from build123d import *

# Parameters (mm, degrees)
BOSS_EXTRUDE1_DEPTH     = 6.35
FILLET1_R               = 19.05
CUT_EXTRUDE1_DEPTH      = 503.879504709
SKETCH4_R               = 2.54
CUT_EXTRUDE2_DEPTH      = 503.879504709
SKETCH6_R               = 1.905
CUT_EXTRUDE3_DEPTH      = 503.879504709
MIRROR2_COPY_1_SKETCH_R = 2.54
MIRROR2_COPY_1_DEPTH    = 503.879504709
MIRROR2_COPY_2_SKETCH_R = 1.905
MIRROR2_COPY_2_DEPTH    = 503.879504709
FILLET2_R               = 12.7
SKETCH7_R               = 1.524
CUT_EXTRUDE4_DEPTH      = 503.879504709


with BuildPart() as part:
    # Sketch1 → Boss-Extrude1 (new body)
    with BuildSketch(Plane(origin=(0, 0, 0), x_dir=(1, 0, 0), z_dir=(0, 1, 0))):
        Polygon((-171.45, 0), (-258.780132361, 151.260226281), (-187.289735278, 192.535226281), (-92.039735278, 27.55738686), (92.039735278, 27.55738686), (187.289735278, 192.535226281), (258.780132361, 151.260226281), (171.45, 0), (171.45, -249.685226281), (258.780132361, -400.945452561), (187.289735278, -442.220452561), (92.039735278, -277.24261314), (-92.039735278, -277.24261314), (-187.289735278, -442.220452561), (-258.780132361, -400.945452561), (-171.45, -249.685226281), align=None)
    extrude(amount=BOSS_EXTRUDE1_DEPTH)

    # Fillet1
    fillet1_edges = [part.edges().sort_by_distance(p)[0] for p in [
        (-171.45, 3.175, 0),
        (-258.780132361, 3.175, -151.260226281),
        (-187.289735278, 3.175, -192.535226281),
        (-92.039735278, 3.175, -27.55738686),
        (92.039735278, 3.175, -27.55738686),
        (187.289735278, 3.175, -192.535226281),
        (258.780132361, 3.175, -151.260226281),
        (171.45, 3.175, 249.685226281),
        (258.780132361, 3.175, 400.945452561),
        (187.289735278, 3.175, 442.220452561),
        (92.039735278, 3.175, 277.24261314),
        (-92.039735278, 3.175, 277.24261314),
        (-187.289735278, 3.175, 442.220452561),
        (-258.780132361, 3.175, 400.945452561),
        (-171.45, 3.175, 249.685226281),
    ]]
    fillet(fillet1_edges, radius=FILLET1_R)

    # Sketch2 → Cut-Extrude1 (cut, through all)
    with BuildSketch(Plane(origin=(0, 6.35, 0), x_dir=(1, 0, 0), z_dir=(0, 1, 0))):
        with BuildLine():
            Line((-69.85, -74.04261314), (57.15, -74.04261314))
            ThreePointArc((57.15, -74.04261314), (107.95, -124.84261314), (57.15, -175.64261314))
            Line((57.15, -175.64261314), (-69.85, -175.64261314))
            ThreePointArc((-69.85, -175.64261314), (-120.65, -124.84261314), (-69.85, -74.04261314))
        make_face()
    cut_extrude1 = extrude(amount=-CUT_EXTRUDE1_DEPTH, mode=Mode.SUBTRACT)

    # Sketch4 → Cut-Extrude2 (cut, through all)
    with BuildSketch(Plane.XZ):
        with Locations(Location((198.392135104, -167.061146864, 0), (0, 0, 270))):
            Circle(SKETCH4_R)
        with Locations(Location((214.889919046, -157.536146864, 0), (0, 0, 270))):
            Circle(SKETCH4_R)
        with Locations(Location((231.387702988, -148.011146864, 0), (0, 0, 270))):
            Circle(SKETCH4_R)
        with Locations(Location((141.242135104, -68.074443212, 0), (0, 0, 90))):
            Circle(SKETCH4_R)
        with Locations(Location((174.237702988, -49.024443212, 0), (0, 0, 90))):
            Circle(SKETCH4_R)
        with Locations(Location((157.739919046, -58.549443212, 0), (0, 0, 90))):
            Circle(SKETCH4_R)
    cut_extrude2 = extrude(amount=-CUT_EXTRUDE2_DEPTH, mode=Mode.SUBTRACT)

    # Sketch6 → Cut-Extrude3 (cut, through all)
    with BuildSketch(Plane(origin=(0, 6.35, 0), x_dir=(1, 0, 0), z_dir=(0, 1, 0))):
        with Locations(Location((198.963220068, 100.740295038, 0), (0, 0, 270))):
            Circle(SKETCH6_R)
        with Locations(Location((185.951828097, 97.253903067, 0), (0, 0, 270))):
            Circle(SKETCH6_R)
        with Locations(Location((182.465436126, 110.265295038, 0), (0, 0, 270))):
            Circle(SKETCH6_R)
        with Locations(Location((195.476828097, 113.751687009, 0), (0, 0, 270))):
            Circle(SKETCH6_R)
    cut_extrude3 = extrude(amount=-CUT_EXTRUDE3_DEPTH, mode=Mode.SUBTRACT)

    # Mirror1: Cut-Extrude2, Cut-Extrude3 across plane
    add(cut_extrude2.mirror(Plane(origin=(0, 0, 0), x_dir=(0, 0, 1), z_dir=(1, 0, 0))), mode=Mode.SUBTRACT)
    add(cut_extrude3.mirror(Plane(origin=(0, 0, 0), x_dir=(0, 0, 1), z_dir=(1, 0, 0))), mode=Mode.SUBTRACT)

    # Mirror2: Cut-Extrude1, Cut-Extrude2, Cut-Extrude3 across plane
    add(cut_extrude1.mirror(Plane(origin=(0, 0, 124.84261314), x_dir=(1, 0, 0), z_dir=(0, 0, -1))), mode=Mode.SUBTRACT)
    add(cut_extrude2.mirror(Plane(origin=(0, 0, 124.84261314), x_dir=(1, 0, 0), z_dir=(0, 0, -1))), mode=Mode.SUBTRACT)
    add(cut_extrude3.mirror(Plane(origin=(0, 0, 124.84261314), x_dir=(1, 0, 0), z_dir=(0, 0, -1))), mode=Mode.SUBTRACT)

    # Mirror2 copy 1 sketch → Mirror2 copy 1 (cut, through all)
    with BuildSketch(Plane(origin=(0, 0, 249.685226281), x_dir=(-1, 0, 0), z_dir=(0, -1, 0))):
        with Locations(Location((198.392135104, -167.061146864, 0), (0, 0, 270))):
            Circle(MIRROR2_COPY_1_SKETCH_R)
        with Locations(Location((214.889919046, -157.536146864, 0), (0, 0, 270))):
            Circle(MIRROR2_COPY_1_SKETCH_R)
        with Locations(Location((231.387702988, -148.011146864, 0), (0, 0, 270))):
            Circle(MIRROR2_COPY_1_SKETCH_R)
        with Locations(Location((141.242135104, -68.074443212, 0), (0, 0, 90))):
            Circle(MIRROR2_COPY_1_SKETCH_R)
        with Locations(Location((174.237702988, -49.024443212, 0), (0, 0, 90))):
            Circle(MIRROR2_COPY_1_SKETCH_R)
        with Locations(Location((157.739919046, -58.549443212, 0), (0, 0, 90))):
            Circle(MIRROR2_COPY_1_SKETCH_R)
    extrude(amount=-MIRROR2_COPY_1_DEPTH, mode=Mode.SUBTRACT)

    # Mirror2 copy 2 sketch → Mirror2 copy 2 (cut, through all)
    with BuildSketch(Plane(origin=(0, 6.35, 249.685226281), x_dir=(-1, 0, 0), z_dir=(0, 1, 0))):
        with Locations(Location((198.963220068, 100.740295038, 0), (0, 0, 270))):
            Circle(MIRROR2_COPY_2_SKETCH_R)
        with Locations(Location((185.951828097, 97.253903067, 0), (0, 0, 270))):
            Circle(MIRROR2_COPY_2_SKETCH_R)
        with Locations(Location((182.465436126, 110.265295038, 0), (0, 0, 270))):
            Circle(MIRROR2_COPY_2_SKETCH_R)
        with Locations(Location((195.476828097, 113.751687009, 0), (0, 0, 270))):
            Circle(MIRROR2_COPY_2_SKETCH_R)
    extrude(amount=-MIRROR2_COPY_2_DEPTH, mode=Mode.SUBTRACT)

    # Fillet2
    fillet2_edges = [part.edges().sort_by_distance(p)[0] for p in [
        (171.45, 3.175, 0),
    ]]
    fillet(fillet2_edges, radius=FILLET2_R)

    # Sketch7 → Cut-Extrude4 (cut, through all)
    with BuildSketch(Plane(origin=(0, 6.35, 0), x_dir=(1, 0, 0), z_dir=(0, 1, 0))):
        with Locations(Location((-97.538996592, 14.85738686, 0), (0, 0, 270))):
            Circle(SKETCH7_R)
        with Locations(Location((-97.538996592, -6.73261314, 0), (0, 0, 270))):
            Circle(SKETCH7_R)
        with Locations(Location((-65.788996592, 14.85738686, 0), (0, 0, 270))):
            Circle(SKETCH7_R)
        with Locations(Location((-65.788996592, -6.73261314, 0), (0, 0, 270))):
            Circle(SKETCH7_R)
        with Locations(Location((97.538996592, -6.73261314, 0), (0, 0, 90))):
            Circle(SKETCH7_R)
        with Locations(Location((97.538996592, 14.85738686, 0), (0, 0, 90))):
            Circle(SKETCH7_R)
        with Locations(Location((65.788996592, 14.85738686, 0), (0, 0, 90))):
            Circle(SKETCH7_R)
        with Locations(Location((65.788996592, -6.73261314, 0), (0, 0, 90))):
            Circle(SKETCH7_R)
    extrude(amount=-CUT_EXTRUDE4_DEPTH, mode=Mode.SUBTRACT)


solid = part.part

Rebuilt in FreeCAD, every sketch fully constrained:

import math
import FreeCAD as App
import Part
import Sketcher

V = App.Vector
Q = App.Units.Quantity


def edges_at(feature, points):
    """Names of the edges that pass closest to the given points."""
    edges = feature.Shape.Edges
    near = lambda p: min(range(len(edges)), key=lambda i: edges[i].distToShape(Part.Vertex(*p))[0])
    return sorted({f"Edge{near(p) + 1}" for p in points})

doc = App.newDocument("Part")
body = doc.addObject("PartDesign::Body", "Body")

# Sketch on XZ plane
sketch1 = doc.addObject("Sketcher::SketchObject", "Sketch")
body.addObject(sketch1)
sketch1.AttachmentSupport = (doc.XZ_Plane, [""])
sketch1.MapMode = "FlatFace"
sketch1.addGeometry([
    Part.LineSegment(V(-259, -151, 0), V(-171, 0, 0)),  # 0
    Part.LineSegment(V(-171, 0, 0), V(-171, 250, 0)),  # 1
    Part.LineSegment(V(-171, 250, 0), V(-259, 401, 0)),  # 2
    Part.LineSegment(V(-259, 401, 0), V(-187, 442, 0)),  # 3
    Part.LineSegment(V(-187, 442, 0), V(-92, 277, 0)),  # 4
    Part.LineSegment(V(-92, 277, 0), V(92, 277, 0)),  # 5
    Part.LineSegment(V(92, 277, 0), V(187, 442, 0)),  # 6
    Part.LineSegment(V(187, 442, 0), V(259, 401, 0)),  # 7
    Part.LineSegment(V(259, 401, 0), V(171, 250, 0)),  # 8
    Part.LineSegment(V(171, 250, 0), V(171, 0, 0)),  # 9
    Part.LineSegment(V(171, 0, 0), V(259, -151, 0)),  # 10
    Part.LineSegment(V(259, -151, 0), V(187, -193, 0)),  # 11
    Part.LineSegment(V(187, -193, 0), V(92, -28, 0)),  # 12
    Part.LineSegment(V(92, -28, 0), V(-92, -28, 0)),  # 13
    Part.LineSegment(V(-92, -28, 0), V(-187, -193, 0)),  # 14
    Part.LineSegment(V(-187, -193, 0), V(-259, -151, 0)),  # 15
], False)
sketch1.addConstraint([
    Sketcher.Constraint("Coincident", 0, 2, 1, 1),
    Sketcher.Constraint("Coincident", 1, 2, 2, 1),
    Sketcher.Constraint("Coincident", 2, 2, 3, 1),
    Sketcher.Constraint("Coincident", 3, 2, 4, 1),
    Sketcher.Constraint("Coincident", 4, 2, 5, 1),
    Sketcher.Constraint("Coincident", 5, 2, 6, 1),
    Sketcher.Constraint("Coincident", 6, 2, 7, 1),
    Sketcher.Constraint("Coincident", 7, 2, 8, 1),
    Sketcher.Constraint("Coincident", 8, 2, 9, 1),
    Sketcher.Constraint("Coincident", 9, 2, 10, 1),
    Sketcher.Constraint("Coincident", 10, 2, 11, 1),
    Sketcher.Constraint("Coincident", 11, 2, 12, 1),
    Sketcher.Constraint("Coincident", 12, 2, 13, 1),
    Sketcher.Constraint("Coincident", 13, 2, 14, 1),
    Sketcher.Constraint("Coincident", 14, 2, 15, 1),
    Sketcher.Constraint("Coincident", 15, 2, 0, 1),
    Sketcher.Constraint("Vertical", 1),
    Sketcher.Constraint("Horizontal", 5),
    Sketcher.Constraint("Vertical", 9),
    Sketcher.Constraint("Horizontal", 13),
    Sketcher.Constraint("Symmetric", 0, 2, 9, 2, -1, 1),
    Sketcher.Constraint("Symmetric", 3, 2, 6, 2, -2),
    Sketcher.Constraint("Symmetric", 2, 2, 7, 2, -2),
    Sketcher.Constraint("Symmetric", 11, 2, 14, 2, -2),
    Sketcher.Constraint("Symmetric", 10, 2, 15, 2, -2),
    Sketcher.Constraint("PointOnObject", 0, 2, -1),
    Sketcher.Constraint("Perpendicular", 2, 3),
    Sketcher.Constraint("Perpendicular", 3, 4),
    Sketcher.Constraint("Parallel", 0, 6),
    Sketcher.Constraint("Perpendicular", 6, 7),
    Sketcher.Constraint("Perpendicular", 7, 8),
    Sketcher.Constraint("Perpendicular", 10, 11),
    Sketcher.Constraint("Perpendicular", 11, 12),
    Sketcher.Constraint("Parallel", 8, 14),
    Sketcher.Constraint("Vertical", 7, 2, 10, 2),
    Sketcher.Constraint("Vertical", 6, 2, 11, 2),
    Sketcher.Constraint("Vertical", 5, 2, 12, 2),
    Sketcher.Constraint("Angle", 0, Q("60 deg")),
    Sketcher.Constraint("DistanceY", 13, 2, 4, 2, Q("12 in")),
    Sketcher.Constraint("Distance", 4, Q("7.5 in")),
    Sketcher.Constraint("DistanceX", 1, 2, 8, 2, Q("13.5 in")),
    Sketcher.Constraint("Distance", 3, Q("3.25 in")),
    Sketcher.Constraint("DistanceX", 5, 1, 5, 2, 184.079471),
])
pad1 = doc.addObject("PartDesign::Pad", "Pad")
body.addObject(pad1)
pad1.Profile = sketch1
pad1.Length = Q("0.25 in")
pad1.Reversed = True
doc.recompute()

fillet = doc.addObject("PartDesign::Fillet", "Fillet")
body.addObject(fillet)
fillet.Base = (pad1, edges_at(pad1, [
    (-171.45, 3.175, 0),
    (-258.78, 3.175, -151.26),
    (-187.29, 3.175, -192.535),
    (-92.04, 3.175, -27.557),
    (92.04, 3.175, -27.557),
    (187.29, 3.175, -192.535),
    (258.78, 3.175, -151.26),
    (171.45, 3.175, 249.685),
    (258.78, 3.175, 400.945),
    (187.29, 3.175, 442.22),
    (92.04, 3.175, 277.243),
    (-92.04, 3.175, 277.243),
    (-187.29, 3.175, 442.22),
    (-258.78, 3.175, 400.945),
    (-171.45, 3.175, 249.685),
]))
fillet.Radius = Q("0.75 in")

# Sketch on XZ plane
sketch2 = doc.addObject("Sketcher::SketchObject", "Sketch001")
body.addObject(sketch2)
sketch2.AttachmentSupport = (doc.XZ_Plane, [""])
sketch2.MapMode = "FlatFace"
sketch2.AttachmentOffset = App.Placement(V(0, 0, -0.25 * 25.4), App.Rotation())
sketch2.addGeometry([
    Part.LineSegment(V(57, 74, 0), V(-70, 74, 0)),
    Part.ArcOfCircle(Part.Circle(V(-70, 125, 0), V(0, 0, 1), 51), math.radians(90), math.radians(270)),
    Part.LineSegment(V(-70, 176, 0), V(57, 176, 0)),
    Part.ArcOfCircle(Part.Circle(V(57, 125, 0), V(0, 0, 1), 51), math.radians(-90), math.radians(90)),
], False)
sketch2.addConstraint([
    Sketcher.Constraint("Tangent", 0, 2, 1, 2),
    Sketcher.Constraint("Tangent", 1, 1, 2, 1),
    Sketcher.Constraint("Tangent", 2, 2, 3, 2),
    Sketcher.Constraint("Tangent", 3, 1, 0, 1),
    Sketcher.Constraint("Horizontal", 0),
    Sketcher.Constraint("Horizontal", 2),
    Sketcher.Constraint("Radius", 1, Q("2 in")),
    Sketcher.Constraint("DistanceX", 0, 2, 0, 1, Q("5 in")),
    Sketcher.Constraint("DistanceX", 1, 3, -1, 1, Q("2.75 in")),
    Sketcher.Constraint("DistanceY", -1, 1, 1, 3, 124.842613),
])
pocket1 = doc.addObject("PartDesign::Pocket", "Pocket")
body.addObject(pocket1)
pocket1.Profile = sketch2
pocket1.Type = "ThroughAll"
pocket1.Reversed = True

# Sketch on XZ plane
sketch3 = doc.addObject("Sketcher::SketchObject", "Sketch002")
body.addObject(sketch3)
sketch3.AttachmentSupport = (doc.XZ_Plane, [""])
sketch3.MapMode = "FlatFace"
sketch3.addGeometry([
    Part.Circle(V(198.4, -167.1, 0), V(0, 0, 1), 2.5),  # 0
    Part.Circle(V(214.9, -157.5, 0), V(0, 0, 1), 2.5),  # 1
    Part.Circle(V(231.4, -148, 0), V(0, 0, 1), 2.5),  # 2
    Part.Circle(V(141.2, -68.1, 0), V(0, 0, 1), 2.5),  # 3
    Part.Circle(V(174.2, -49, 0), V(0, 0, 1), 2.5),  # 4
    Part.Circle(V(157.7, -58.5, 0), V(0, 0, 1), 2.5),  # 5
], False)
sketch3.addConstraint([
    Sketcher.Constraint("Equal", 0, 1),
    Sketcher.Constraint("Equal", 1, 2),
    Sketcher.Constraint("Equal", 2, 3),
    Sketcher.Constraint("Equal", 3, 4),
    Sketcher.Constraint("Equal", 4, 5),
    Sketcher.Constraint("Diameter", 0, Q("0.2 in")),
    Sketcher.Constraint("DistanceY", 0, 3, 2, 3, Q("0.75 in")),
    Sketcher.Constraint("DistanceX", 3, 3, 0, 3, Q("2.25 in")),
    Sketcher.Constraint("DistanceY", 3, 3, 4, 3, Q("0.75 in")),
    Sketcher.Constraint("DistanceX", 4, 3, 2, 3, Q("2.25 in")),
    Sketcher.Constraint("DistanceX", 5, 3, 1, 3, Q("2.25 in")),
    Sketcher.Constraint("DistanceY", 0, 3, 1, 3, Q("0.375 in")),
    Sketcher.Constraint("DistanceY", 5, 3, 4, 3, Q("0.375 in")),
    Sketcher.Constraint("DistanceX", -1, 1, 1, 3, 214.889919),
    Sketcher.Constraint("DistanceX", -1, 1, 0, 3, 198.392135),
    Sketcher.Constraint("DistanceY", 0, 3, -1, 1, 167.061147),
    Sketcher.Constraint("DistanceX", -1, 1, 2, 3, 231.387703),
    Sketcher.Constraint("DistanceY", 3, 3, -1, 1, 68.074443),
])
pocket2 = doc.addObject("PartDesign::Pocket", "Pocket001")
body.addObject(pocket2)
pocket2.Profile = sketch3
pocket2.Type = "ThroughAll"

# Sketch on XZ plane
sketch4 = doc.addObject("Sketcher::SketchObject", "Sketch003")
body.addObject(sketch4)
sketch4.AttachmentSupport = (doc.XZ_Plane, [""])
sketch4.MapMode = "FlatFace"
sketch4.AttachmentOffset = App.Placement(V(0, 0, -0.25 * 25.4), App.Rotation())
sketch4.addGeometry([
    Part.Circle(V(199, -100.7, 0), V(0, 0, 1), 1.9),
    Part.Circle(V(186, -97.3, 0), V(0, 0, 1), 1.9),
    Part.Circle(V(182.5, -110.3, 0), V(0, 0, 1), 1.9),
    Part.Circle(V(195.5, -113.8, 0), V(0, 0, 1), 1.9),
], False)
sketch4.addConstraint([
    Sketcher.Constraint("Equal", 0, 1),
    Sketcher.Constraint("Equal", 1, 2),
    Sketcher.Constraint("Equal", 2, 3),
    Sketcher.Constraint("Diameter", 0, Q("0.15 in")),
    Sketcher.Constraint("DistanceY", 2, 3, 0, 3, Q("0.375 in")),
    Sketcher.Constraint("DistanceX", 1, 3, 3, 3, Q("0.375 in")),
    Sketcher.Constraint("DistanceX", -1, 1, 0, 3, 198.96322),
    Sketcher.Constraint("DistanceX", -1, 1, 1, 3, 185.951828),
    Sketcher.Constraint("DistanceY", 0, 3, 1, 3, 3.486392),
    Sketcher.Constraint("DistanceX", 2, 3, 1, 3, 3.486392),
    Sketcher.Constraint("DistanceY", 3, 3, 0, 3, 13.011392),
    Sketcher.Constraint("DistanceY", 0, 3, -1, 1, 100.740295),
])
pocket3 = doc.addObject("PartDesign::Pocket", "Pocket002")
body.addObject(pocket3)
pocket3.Profile = sketch4
pocket3.Type = "ThroughAll"
pocket3.Reversed = True
doc.recompute()

mirrored = doc.addObject("PartDesign::Mirrored", "Mirrored")
body.addObject(mirrored)
mirrored.Originals = [pocket2, pocket3]
mirrored.MirrorPlane = (doc.YZ_Plane, [""])
body.Tip = mirrored
doc.recompute()

datumplane = doc.addObject("PartDesign::Plane", "DatumPlane")
body.addObject(datumplane)
datumplane.AttachmentSupport = (doc.XY_Plane, [""])
datumplane.MapMode = "FlatFace"
datumplane.AttachmentOffset = App.Placement(V(0, 0, 124.842613), App.Rotation())
mirrored2 = doc.addObject("PartDesign::Mirrored", "Mirrored001")
body.addObject(mirrored2)
mirrored2.Originals = [pocket1, pocket2, pocket3]
mirrored2.MirrorPlane = (datumplane, [""])
body.Tip = mirrored2

# Sketch on XZ plane
sketch5 = doc.addObject("Sketcher::SketchObject", "Sketch004")
body.addObject(sketch5)
sketch5.AttachmentSupport = (doc.XZ_Plane, [""])
sketch5.MapMode = "FlatFace"
sketch5.addGeometry([
    Part.Circle(V(-198.4, 416.7, 0), V(0, 0, 1), 2.5),  # 0
    Part.Circle(V(-214.9, 407.2, 0), V(0, 0, 1), 2.5),  # 1
    Part.Circle(V(-231.4, 397.7, 0), V(0, 0, 1), 2.5),  # 2
    Part.Circle(V(-141.2, 317.8, 0), V(0, 0, 1), 2.5),  # 3
    Part.Circle(V(-174.2, 298.7, 0), V(0, 0, 1), 2.5),  # 4
    Part.Circle(V(-157.7, 308.2, 0), V(0, 0, 1), 2.5),  # 5
], False)
sketch5.addConstraint([
    Sketcher.Constraint("Equal", 0, 1),
    Sketcher.Constraint("Equal", 1, 2),
    Sketcher.Constraint("Equal", 2, 3),
    Sketcher.Constraint("Equal", 3, 4),
    Sketcher.Constraint("Equal", 4, 5),
    Sketcher.Constraint("Diameter", 0, Q("0.2 in")),
    Sketcher.Constraint("DistanceY", 2, 3, 0, 3, Q("0.75 in")),
    Sketcher.Constraint("DistanceX", 0, 3, 3, 3, Q("2.25 in")),
    Sketcher.Constraint("DistanceY", 4, 3, 3, 3, Q("0.75 in")),
    Sketcher.Constraint("DistanceX", 2, 3, 4, 3, Q("2.25 in")),
    Sketcher.Constraint("DistanceX", 1, 3, 5, 3, Q("2.25 in")),
    Sketcher.Constraint("DistanceY", 1, 3, 0, 3, Q("0.375 in")),
    Sketcher.Constraint("DistanceY", 5, 3, 3, 3, Q("0.375 in")),
    Sketcher.Constraint("DistanceX", 1, 3, -1, 1, 214.889919),
    Sketcher.Constraint("DistanceY", -1, 1, 3, 3, 317.759669),
    Sketcher.Constraint("DistanceX", 0, 3, -1, 1, 198.392135),
    Sketcher.Constraint("DistanceY", -1, 1, 0, 3, 416.746373),
    Sketcher.Constraint("DistanceX", 2, 3, -1, 1, 231.387703),
])
pocket4 = doc.addObject("PartDesign::Pocket", "Pocket003")
body.addObject(pocket4)
pocket4.Profile = sketch5
pocket4.Type = "ThroughAll"

# Sketch on XZ plane
sketch6 = doc.addObject("Sketcher::SketchObject", "Sketch005")
body.addObject(sketch6)
sketch6.AttachmentSupport = (doc.XZ_Plane, [""])
sketch6.MapMode = "FlatFace"
sketch6.AttachmentOffset = App.Placement(V(0, 0, -0.25 * 25.4), App.Rotation())
sketch6.addGeometry([
    Part.Circle(V(-199, 350.4, 0), V(0, 0, 1), 1.9),
    Part.Circle(V(-186, 346.9, 0), V(0, 0, 1), 1.9),
    Part.Circle(V(-182.5, 360, 0), V(0, 0, 1), 1.9),
    Part.Circle(V(-195.5, 363.4, 0), V(0, 0, 1), 1.9),
], False)
sketch6.addConstraint([
    Sketcher.Constraint("Equal", 0, 1),
    Sketcher.Constraint("Equal", 1, 2),
    Sketcher.Constraint("Equal", 2, 3),
    Sketcher.Constraint("Diameter", 0, Q("0.15 in")),
    Sketcher.Constraint("DistanceY", 0, 3, 2, 3, Q("0.375 in")),
    Sketcher.Constraint("DistanceX", 3, 3, 1, 3, Q("0.375 in")),
    Sketcher.Constraint("DistanceX", 0, 3, -1, 1, 198.96322),
    Sketcher.Constraint("DistanceY", -1, 1, 0, 3, 350.425521),
    Sketcher.Constraint("DistanceX", 1, 3, -1, 1, 185.951828),
    Sketcher.Constraint("DistanceY", -1, 1, 1, 3, 346.939129),
    Sketcher.Constraint("DistanceX", 1, 3, 2, 3, 3.486392),
    Sketcher.Constraint("DistanceY", 0, 3, 3, 3, 13.011392),
])
pocket5 = doc.addObject("PartDesign::Pocket", "Pocket004")
body.addObject(pocket5)
pocket5.Profile = sketch6
pocket5.Type = "ThroughAll"
pocket5.Reversed = True
doc.recompute()

fillet2 = doc.addObject("PartDesign::Fillet", "Fillet001")
body.addObject(fillet2)
fillet2.Base = (pocket5, edges_at(pocket5, [(171.45, 3.175, 0)]))
fillet2.Radius = Q("0.5 in")

# Sketch on XZ plane
sketch7 = doc.addObject("Sketcher::SketchObject", "Sketch006")
body.addObject(sketch7)
sketch7.AttachmentSupport = (doc.XZ_Plane, [""])
sketch7.MapMode = "FlatFace"
sketch7.AttachmentOffset = App.Placement(V(0, 0, -0.25 * 25.4), App.Rotation())
sketch7.addGeometry([
    Part.Circle(V(-97.5, -14.9, 0), V(0, 0, 1), 1.5),  # 0
    Part.Circle(V(-97.5, 6.7, 0), V(0, 0, 1), 1.5),  # 1
    Part.Circle(V(-65.8, -14.9, 0), V(0, 0, 1), 1.5),  # 2
    Part.Circle(V(-65.8, 6.7, 0), V(0, 0, 1), 1.5),  # 3
    Part.Circle(V(97.5, 6.7, 0), V(0, 0, 1), 1.5),  # 4
    Part.Circle(V(97.5, -14.9, 0), V(0, 0, 1), 1.5),  # 5
    Part.Circle(V(65.8, -14.9, 0), V(0, 0, 1), 1.5),  # 6
    Part.Circle(V(65.8, 6.7, 0), V(0, 0, 1), 1.5),  # 7
], False)
sketch7.addConstraint([
    Sketcher.Constraint("Equal", 0, 1),
    Sketcher.Constraint("Equal", 1, 2),
    Sketcher.Constraint("Equal", 2, 3),
    Sketcher.Constraint("Equal", 3, 4),
    Sketcher.Constraint("Equal", 4, 5),
    Sketcher.Constraint("Equal", 5, 6),
    Sketcher.Constraint("Equal", 6, 7),
    Sketcher.Constraint("Symmetric", 1, 3, 4, 3, -2),
    Sketcher.Constraint("Symmetric", 0, 3, 5, 3, -2),
    Sketcher.Constraint("Symmetric", 2, 3, 6, 3, -2),
    Sketcher.Constraint("Symmetric", 3, 3, 7, 3, -2),
    Sketcher.Constraint("Horizontal", 0, 3, 2, 3),
    Sketcher.Constraint("Horizontal", 1, 3, 3, 3),
    Sketcher.Constraint("Vertical", 0, 3, 1, 3),
    Sketcher.Constraint("Vertical", 2, 3, 3, 3),
    Sketcher.Constraint("Diameter", 0, Q("0.12 in")),
    Sketcher.Constraint("DistanceY", 0, 3, 1, 3, Q("0.85 in")),
    Sketcher.Constraint("DistanceX", 0, 3, 2, 3, Q("1.25 in")),
    Sketcher.Constraint("DistanceX", 0, 3, -1, 1, 97.538997),
    Sketcher.Constraint("DistanceY", 0, 3, -1, 1, 14.857387),
])
pocket6 = doc.addObject("PartDesign::Pocket", "Pocket005")
body.addObject(pocket6)
pocket6.Profile = sketch7
pocket6.Type = "ThroughAll"
pocket6.Reversed = True

doc.recompute()
